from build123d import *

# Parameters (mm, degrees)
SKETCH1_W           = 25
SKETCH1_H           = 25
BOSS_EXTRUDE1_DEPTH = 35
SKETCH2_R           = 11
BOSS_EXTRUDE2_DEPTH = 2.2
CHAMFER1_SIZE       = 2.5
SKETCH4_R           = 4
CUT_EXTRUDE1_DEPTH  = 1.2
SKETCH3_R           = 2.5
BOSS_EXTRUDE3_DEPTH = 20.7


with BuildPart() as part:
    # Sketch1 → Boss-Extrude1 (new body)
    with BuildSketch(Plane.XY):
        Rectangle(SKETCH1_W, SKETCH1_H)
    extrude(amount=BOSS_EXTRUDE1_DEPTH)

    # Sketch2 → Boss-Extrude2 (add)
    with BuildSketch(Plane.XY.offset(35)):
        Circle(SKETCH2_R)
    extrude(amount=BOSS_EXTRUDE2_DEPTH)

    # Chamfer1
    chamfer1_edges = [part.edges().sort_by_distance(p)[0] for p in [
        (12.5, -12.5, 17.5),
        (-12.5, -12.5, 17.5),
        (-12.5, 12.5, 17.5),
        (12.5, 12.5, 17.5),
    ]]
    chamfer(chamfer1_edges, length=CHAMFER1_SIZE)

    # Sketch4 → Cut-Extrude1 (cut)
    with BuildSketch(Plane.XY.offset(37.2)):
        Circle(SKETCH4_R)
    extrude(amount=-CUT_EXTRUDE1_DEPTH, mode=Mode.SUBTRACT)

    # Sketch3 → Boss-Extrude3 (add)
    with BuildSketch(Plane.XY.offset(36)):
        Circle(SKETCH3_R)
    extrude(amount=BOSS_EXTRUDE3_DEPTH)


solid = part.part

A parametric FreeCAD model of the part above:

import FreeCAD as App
import Part
import Sketcher

V = App.Vector
Q = App.Units.Quantity


def edges_at(feature, points):
    """Names of the edges that pass closest to the given points."""
    edges = feature.Shape.Edges
    near = lambda p: min(range(len(edges)), key=lambda i: edges[i].distToShape(Part.Vertex(*p))[0])
    return sorted({f"Edge{near(p) + 1}" for p in points})

doc = App.newDocument("Part")
params = doc.addObject("Spreadsheet::Sheet", "Params")
for row, (alias, value) in enumerate([
    ("sketch1_width", "25 mm"),
    ("pad1_length", "35 mm"),
    ("sketch2_diameter", "22 mm"),
    ("pad2_length", "2.2 mm"),
    ("chamfer_size", "2.5 mm"),
    ("sketch3_diameter", "8 mm"),
    ("pocket1_length", "1.2 mm"),
    ("sketch4_diameter", "5 mm"),
    ("pad3_length", "20.7 mm"),
], start=1):
    params.set(f"A{row}", alias)
    params.set(f"B{row}", "=" + value)
    params.setAlias(f"B{row}", alias)

body = doc.addObject("PartDesign::Body", "Body")

# Sketch on XY plane
sketch1 = doc.addObject("Sketcher::SketchObject", "Sketch")
body.addObject(sketch1)
sketch1.AttachmentSupport = (doc.XY_Plane, [""])
sketch1.MapMode = "FlatFace"
sketch1.addGeometry([
    Part.LineSegment(V(-12, 12, 0), V(-12, -12, 0)),
    Part.LineSegment(V(-12, -12, 0), V(12, -12, 0)),
    Part.LineSegment(V(12, -12, 0), V(12, 12, 0)),
    Part.LineSegment(V(12, 12, 0), V(-12, 12, 0)),
], False)
sketch1.addConstraint([
    Sketcher.Constraint("Coincident", 0, 2, 1, 1),
    Sketcher.Constraint("Coincident", 1, 2, 2, 1),
    Sketcher.Constraint("Coincident", 2, 2, 3, 1),
    Sketcher.Constraint("Coincident", 3, 2, 0, 1),
    Sketcher.Constraint("Vertical", 0),
    Sketcher.Constraint("Horizontal", 1),
    Sketcher.Constraint("Vertical", 2),
    Sketcher.Constraint("Horizontal", 3),
    Sketcher.Constraint("Symmetric", 0, 2, 2, 2, -1, 1),
    Sketcher.Constraint("Equal", 3, 0),
    Sketcher.Constraint("DistanceX", 1, 1, 1, 2, Q("25 mm")),
])
sketch1.setExpression("Constraints[10]", "Params.sketch1_width")
pad1 = doc.addObject("PartDesign::Pad", "Pad")
body.addObject(pad1)
pad1.Profile = sketch1
pad1.setExpression("Length", "Params.pad1_length")

# Sketch on XY plane
sketch2 = doc.addObject("Sketcher::SketchObject", "Sketch001")
body.addObject(sketch2)
sketch2.AttachmentSupport = (doc.XY_Plane, [""])
sketch2.MapMode = "FlatFace"
sketch2.AttachmentOffset = App.Placement(V(0, 0, 35), App.Rotation())
sketch2.addGeometry(Part.Circle(V(0, 0, 0), V(0, 0, 1), 11), False)
sketch2.addConstraint([
    Sketcher.Constraint("Coincident", 0, 3, -1, 1),
    Sketcher.Constraint("Diameter", 0, Q("22 mm")),
])
sketch2.setExpression("Constraints[1]", "Params.sketch2_diameter")
pad2 = doc.addObject("PartDesign::Pad", "Pad001")
body.addObject(pad2)
pad2.Profile = sketch2
pad2.setExpression("Length", "Params.pad2_length")
doc.recompute()

chamfer = doc.addObject("PartDesign::Chamfer", "Chamfer")
body.addObject(chamfer)
chamfer.Base = (pad2, edges_at(pad2, [
    (12.5, -12.5, 17.5),
    (-12.5, -12.5, 17.5),
    (-12.5, 12.5, 17.5),
    (12.5, 12.5, 17.5),
]))
chamfer.setExpression("Size", "Params.chamfer_size")

# Sketch on XY plane
sketch3 = doc.addObject("Sketcher::SketchObject", "Sketch002")
body.addObject(sketch3)
sketch3.AttachmentSupport = (doc.XY_Plane, [""])
sketch3.MapMode = "FlatFace"
sketch3.AttachmentOffset = App.Placement(V(0, 0, 37.2), App.Rotation())
sketch3.addGeometry(Part.Circle(V(0, 0, 0), V(0, 0, 1), 4), False)
sketch3.addConstraint([
    Sketcher.Constraint("Coincident", 0, 3, -1, 1),
    Sketcher.Constraint("Diameter", 0, Q("8 mm")),
])
sketch3.setExpression("Constraints[1]", "Params.sketch3_diameter")
pocket1 = doc.addObject("PartDesign::Pocket", "Pocket")
body.addObject(pocket1)
pocket1.Profile = sketch3
pocket1.setExpression("Length", "Params.pocket1_length")

# Sketch on XY plane
sketch4 = doc.addObject("Sketcher::SketchObject", "Sketch003")
body.addObject(sketch4)
sketch4.AttachmentSupport = (doc.XY_Plane, [""])
sketch4.MapMode = "FlatFace"
sketch4.AttachmentOffset = App.Placement(V(0, 0, 36), App.Rotation())
sketch4.addGeometry(Part.Circle(V(0, 0, 0), V(0, 0, 1), 2.5), False)
sketch4.addConstraint([
    Sketcher.Constraint("Coincident", 0, 3, -1, 1),
    Sketcher.Constraint("Diameter", 0, Q("5 mm")),
])
sketch4.setExpression("Constraints[1]", "Params.sketch4_diameter")
pad3 = doc.addObject("PartDesign::Pad", "Pad002")
body.addObject(pad3)
pad3.Profile = sketch4
pad3.setExpression("Length", "Params.pad3_length")

doc.recompute()
